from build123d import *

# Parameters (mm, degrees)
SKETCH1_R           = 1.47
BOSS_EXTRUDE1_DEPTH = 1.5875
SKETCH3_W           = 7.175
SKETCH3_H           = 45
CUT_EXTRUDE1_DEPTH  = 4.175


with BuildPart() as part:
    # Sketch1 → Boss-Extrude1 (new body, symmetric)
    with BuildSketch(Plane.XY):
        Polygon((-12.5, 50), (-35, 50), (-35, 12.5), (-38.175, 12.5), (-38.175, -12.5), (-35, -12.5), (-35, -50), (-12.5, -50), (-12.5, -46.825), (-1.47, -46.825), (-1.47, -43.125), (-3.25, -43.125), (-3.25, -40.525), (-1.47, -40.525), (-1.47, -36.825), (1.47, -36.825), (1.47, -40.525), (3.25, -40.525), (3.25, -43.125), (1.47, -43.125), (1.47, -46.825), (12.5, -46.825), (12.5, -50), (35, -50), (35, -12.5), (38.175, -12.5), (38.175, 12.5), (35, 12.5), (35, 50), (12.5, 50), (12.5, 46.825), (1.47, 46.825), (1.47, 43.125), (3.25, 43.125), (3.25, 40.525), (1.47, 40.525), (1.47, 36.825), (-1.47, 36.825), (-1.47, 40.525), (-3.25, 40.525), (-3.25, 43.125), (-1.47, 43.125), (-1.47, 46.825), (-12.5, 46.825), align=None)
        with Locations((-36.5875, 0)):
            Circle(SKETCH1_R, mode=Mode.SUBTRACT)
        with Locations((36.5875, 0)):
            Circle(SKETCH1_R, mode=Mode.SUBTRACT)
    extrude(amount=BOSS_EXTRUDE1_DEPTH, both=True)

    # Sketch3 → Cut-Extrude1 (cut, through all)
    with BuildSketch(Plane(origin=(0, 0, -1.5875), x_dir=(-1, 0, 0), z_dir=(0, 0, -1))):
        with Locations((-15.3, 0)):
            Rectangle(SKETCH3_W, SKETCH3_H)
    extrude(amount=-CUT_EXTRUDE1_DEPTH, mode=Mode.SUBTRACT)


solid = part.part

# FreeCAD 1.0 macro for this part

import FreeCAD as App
import Part
import Sketcher
from FreeCAD import Vector
Q = App.Units.Quantity


def add_polygon(sketch, points):
    """Adds a closed chain of lines whose ends are joined by coincident constraints."""
    first, n = sketch.GeometryCount, len(points)
    for a, b in zip(points, points[1:] + points[:1]):
        sketch.addGeometry(Part.LineSegment(App.Vector(*a, 0), App.Vector(*b, 0)), False)
    for i in range(n):
        sketch.addConstraint(Sketcher.Constraint("Coincident", first + i, 2, first + (i + 1) % n, 1))

doc = App.newDocument("Part")
body = doc.addObject("PartDesign::Body", "Body")

# Sketch on XY plane
sketch1 = body.newObject("Sketcher::SketchObject", "Sketch")
sketch1.AttachmentSupport = (doc.getObject("XY_Plane"), [""])
sketch1.MapMode = "FlatFace"
add_polygon(sketch1, [(-12.5, 50), (-35, 50), (-35, 12.5), (-38.175, 12.5), (-38.175, -12.5), (-35, -12.5), (-35, -50), (-12.5, -50), (-12.5, -46.825), (-1.47, -46.825), (-1.47, -43.125), (-3.25, -43.125), (-3.25, -40.525), (-1.47, -40.525), (-1.47, -36.825), (1.47, -36.825), (1.47, -40.525), (3.25, -40.525), (3.25, -43.125), (1.47, -43.125), (1.47, -46.825), (12.5, -46.825), (12.5, -50), (35, -50), (35, -12.5), (38.175, -12.5), (38.175, 12.5), (35, 12.5), (35, 50), (12.5, 50), (12.5, 46.825), (1.47, 46.825), (1.47, 43.125), (3.25, 43.125), (3.25, 40.525), (1.47, 40.525), (1.47, 36.825), (-1.47, 36.825), (-1.47, 40.525), (-3.25, 40.525), (-3.25, 43.125), (-1.47, 43.125), (-1.47, 46.825), (-12.5, 46.825)])  # lines 0-43
sketch1.addGeometry(Part.Circle(Vector(-36.5875, 0, 0), Vector(0, 0, 1), 1.47), False)  # 44
sketch1.addGeometry(Part.Circle(Vector(36.5875, 0, 0), Vector(0, 0, 1), 1.47), False)  # 45
sketch1.addConstraint(Sketcher.Constraint("Horizontal", 0))
sketch1.addConstraint(Sketcher.Constraint("Vertical", 1))
sketch1.addConstraint(Sketcher.Constraint("Horizontal", 2))
sketch1.addConstraint(Sketcher.Constraint("Vertical", 3))
sketch1.addConstraint(Sketcher.Constraint("Horizontal", 4))
sketch1.addConstraint(Sketcher.Constraint("Vertical", 5))
sketch1.addConstraint(Sketcher.Constraint("Horizontal", 6))
sketch1.addConstraint(Sketcher.Constraint("Vertical", 7))
sketch1.addConstraint(Sketcher.Constraint("Horizontal", 8))
sketch1.addConstraint(Sketcher.Constraint("Vertical", 9))
sketch1.addConstraint(Sketcher.Constraint("Horizontal", 10))
sketch1.addConstraint(Sketcher.Constraint("Vertical", 11))
sketch1.addConstraint(Sketcher.Constraint("Horizontal", 12))
sketch1.addConstraint(Sketcher.Constraint("Vertical", 13))
sketch1.addConstraint(Sketcher.Constraint("Horizontal", 14))
sketch1.addConstraint(Sketcher.Constraint("Vertical", 15))
sketch1.addConstraint(Sketcher.Constraint("Horizontal", 16))
sketch1.addConstraint(Sketcher.Constraint("Vertical", 17))
sketch1.addConstraint(Sketcher.Constraint("Horizontal", 18))
sketch1.addConstraint(Sketcher.Constraint("Vertical", 19))
sketch1.addConstraint(Sketcher.Constraint("Horizontal", 20))
sketch1.addConstraint(Sketcher.Constraint("Vertical", 21))
sketch1.addConstraint(Sketcher.Constraint("Horizontal", 22))
sketch1.addConstraint(Sketcher.Constraint("Vertical", 23))
sketch1.addConstraint(Sketcher.Constraint("Horizontal", 24))
sketch1.addConstraint(Sketcher.Constraint("Vertical", 25))
sketch1.addConstraint(Sketcher.Constraint("Horizontal", 26))
sketch1.addConstraint(Sketcher.Constraint("Vertical", 27))
sketch1.addConstraint(Sketcher.Constraint("Horizontal", 28))
sketch1.addConstraint(Sketcher.Constraint("Vertical", 29))
sketch1.addConstraint(Sketcher.Constraint("Horizontal", 30))
sketch1.addConstraint(Sketcher.Constraint("Vertical", 31))
sketch1.addConstraint(Sketcher.Constraint("Horizontal", 32))
sketch1.addConstraint(Sketcher.Constraint("Vertical", 33))
sketch1.addConstraint(Sketcher.Constraint("Horizontal", 34))
sketch1.addConstraint(Sketcher.Constraint("Vertical", 35))
sketch1.addConstraint(Sketcher.Constraint("Horizontal", 36))
sketch1.addConstraint(Sketcher.Constraint("Vertical", 37))
sketch1.addConstraint(Sketcher.Constraint("Horizontal", 38))
sketch1.addConstraint(Sketcher.Constraint("Vertical", 39))
sketch1.addConstraint(Sketcher.Constraint("Horizontal", 40))
sketch1.addConstraint(Sketcher.Constraint("Vertical", 41))
sketch1.addConstraint(Sketcher.Constraint("Horizontal", 42))
sketch1.addConstraint(Sketcher.Constraint("Vertical", 43))
sketch1.addConstraint(Sketcher.Constraint("Equal", 44, 45))
sketch1.addConstraint(Sketcher.Constraint("Symmetric", 44, 3, 45, 3, -1, 1))
sketch1.addConstraint(Sketcher.Constraint("Symmetric", 0, 2, 22, 2, -1, 1))
sketch1.addConstraint(Sketcher.Constraint("Symmetric", 2, 2, 24, 2, -1, 1))
sketch1.addConstraint(Sketcher.Constraint("Symmetric", 4, 2, 26, 2, -1, 1))
sketch1.addConstraint(Sketcher.Constraint("Symmetric", 6, 2, 28, 2, -1, 1))
sketch1.addConstraint(Sketcher.Constraint("Symmetric", 8, 2, 30, 2, -1, 1))
sketch1.addConstraint(Sketcher.Constraint("Symmetric", 10, 2, 32, 2, -1, 1))
sketch1.addConstraint(Sketcher.Constraint("Symmetric", 12, 2, 34, 2, -1, 1))
sketch1.addConstraint(Sketcher.Constraint("Symmetric", 14, 2, 36, 2, -1, 1))
sketch1.addConstraint(Sketcher.Constraint("Symmetric", 16, 2, 38, 2, -1, 1))
sketch1.addConstraint(Sketcher.Constraint("Symmetric", 18, 2, 40, 2, -1, 1))
sketch1.addConstraint(Sketcher.Constraint("Symmetric", 20, 2, 42, 2, -1, 1))
sketch1.addConstraint(Sketcher.Constraint("Symmetric", 12, 2, 15, 2, -2))
sketch1.addConstraint(Sketcher.Constraint("Symmetric", 10, 2, 17, 2, -2))
sketch1.addConstraint(Sketcher.Constraint("Symmetric", 8, 2, 19, 2, -2))
sketch1.addConstraint(Sketcher.Constraint("Symmetric", 6, 2, 21, 2, -2))
sketch1.addConstraint(Sketcher.Constraint("Symmetric", 4, 2, 23, 2, -2))
sketch1.addConstraint(Sketcher.Constraint("PointOnObject", 44, 3, -1))
sketch1.addConstraint(Sketcher.Constraint("Vertical", 9, 2, 12, 2))
sketch1.addConstraint(Sketcher.Constraint("Equal", 26, 7))
sketch1.addConstraint(Sketcher.Constraint("Equal", 9, 13))
sketch1.addConstraint(Sketcher.Constraint("Diameter", 44, Q("2.94 mm")))
sketch1.addConstraint(Sketcher.Constraint("DistanceY", 3, 2, 3, 1, Q("25 mm")))
sketch1.addConstraint(Sketcher.Constraint("DistanceX", 0, 2, 0, 1, Q("22.5 mm")))
sketch1.addConstraint(Sketcher.Constraint("DistanceY", 1, 2, 1, 1, Q("37.5 mm")))
sketch1.addConstraint(Sketcher.Constraint("DistanceY", 9, 1, 9, 2, Q("3.7 mm")))
sketch1.addConstraint(Sketcher.Constraint("DistanceY", 11, 1, 11, 2, Q("2.6 mm")))
sketch1.addConstraint(Sketcher.Constraint("DistanceX", 0, 2, -1, 1, Q("35 mm")))
sketch1.addConstraint(Sketcher.Constraint("DistanceX", 8, 1, 8, 2, Q("11.03 mm")))
sketch1.addConstraint(Sketcher.Constraint("DistanceX", 10, 2, 10, 1, Q("1.78 mm")))
sketch1.addConstraint(Sketcher.Constraint("DistanceX", 2, 2, 2, 1, Q("3.175 mm")))
sketch1.addConstraint(Sketcher.Constraint("DistanceX", 44, 3, 45, 3, Q("73.175 mm")))
pad1 = body.newObject("PartDesign::Pad", "Pad")
pad1.Profile = sketch1
pad1.Length = 3.175
pad1.Midplane = True

# Sketch on XY plane
sketch2 = body.newObject("Sketcher::SketchObject", "Sketch001")
sketch2.AttachmentSupport = (doc.getObject("XY_Plane"), [""])
sketch2.MapMode = "FlatFace"
sketch2.AttachmentOffset = App.Placement(Vector(0, 0, -1.5875), App.Rotation())
add_polygon(sketch2, [(18.8875, 22.5), (18.8875, -22.5), (11.7125, -22.5), (11.7125, 22.5)])  # lines 0-3
sketch2.addConstraint(Sketcher.Constraint("Vertical", 0))
sketch2.addConstraint(Sketcher.Constraint("Horizontal", 1))
sketch2.addConstraint(Sketcher.Constraint("Vertical", 2))
sketch2.addConstraint(Sketcher.Constraint("Horizontal", 3))
sketch2.addConstraint(Sketcher.Constraint("DistanceY", 0, 2, 0, 1, Q("45 mm")))
sketch2.addConstraint(Sketcher.Constraint("DistanceY", 0, 2, -1, 1, Q("22.5 mm")))
sketch2.addConstraint(Sketcher.Constraint("DistanceX", 1, 2, 1, 1, Q("7.175 mm")))
sketch2.addConstraint(Sketcher.Constraint("DistanceX", -1, 1, 0, 2, Q("18.8875 mm")))
pocket1 = body.newObject("PartDesign::Pocket", "Pocket")
pocket1.Profile = sketch2
pocket1.Type = "ThroughAll"
pocket1.Reversed = True

doc.recompute()
